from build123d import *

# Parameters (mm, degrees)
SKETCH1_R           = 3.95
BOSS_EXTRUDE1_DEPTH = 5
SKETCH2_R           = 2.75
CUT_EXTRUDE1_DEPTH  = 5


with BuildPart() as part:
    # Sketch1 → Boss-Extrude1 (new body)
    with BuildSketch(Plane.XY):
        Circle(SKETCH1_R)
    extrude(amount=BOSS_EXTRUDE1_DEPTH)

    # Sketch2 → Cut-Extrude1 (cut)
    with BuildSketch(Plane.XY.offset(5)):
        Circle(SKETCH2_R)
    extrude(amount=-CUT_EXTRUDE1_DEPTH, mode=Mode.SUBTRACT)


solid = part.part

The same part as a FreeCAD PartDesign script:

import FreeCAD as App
import Part
import Sketcher

V = App.Vector

doc = App.newDocument("Part")
body = doc.addObject("PartDesign::Body", "Body")

sketch1 = doc.addObject("Sketcher::SketchObject", "Sketch")
body.addObject(sketch1)
sketch1.AttachmentSupport = (doc.XY_Plane, [""])
sketch1.MapMode = "FlatFace"
sketch1.addGeometry(Part.Circle(V(0, 0, 0), V(0, 0, 1), 3.95), False)
sketch1.addConstraint([
    Sketcher.Constraint("Coincident", 0, 3, -1, 1),
    Sketcher.Constraint("Diameter", 0, 7.9),
])
pad1 = doc.addObject("PartDesign::Pad", "Pad")
body.addObject(pad1)
pad1.Profile = sketch1
pad1.Length = 5

sketch2 = doc.addObject("Sketcher::SketchObject", "Sketch001")
body.addObject(sketch2)
sketch2.AttachmentSupport = (doc.XY_Plane, [""])
sketch2.MapMode = "FlatFace"
sketch2.AttachmentOffset = App.Placement(V(0, 0, 5), App.Rotation())
sketch2.addGeometry(Part.Circle(V(0, 0, 0), V(0, 0, 1), 2.75), False)
sketch2.addConstraint([
    Sketcher.Constraint("Coincident", 0, 3, -1, 1),
    Sketcher.Constraint("Diameter", 0, 5.5),
])
pocket1 = doc.addObject("PartDesign::Pocket", "Pocket")
body.addObject(pocket1)
pocket1.Profile = sketch2
pocket1.Length = 5

doc.recompute()
